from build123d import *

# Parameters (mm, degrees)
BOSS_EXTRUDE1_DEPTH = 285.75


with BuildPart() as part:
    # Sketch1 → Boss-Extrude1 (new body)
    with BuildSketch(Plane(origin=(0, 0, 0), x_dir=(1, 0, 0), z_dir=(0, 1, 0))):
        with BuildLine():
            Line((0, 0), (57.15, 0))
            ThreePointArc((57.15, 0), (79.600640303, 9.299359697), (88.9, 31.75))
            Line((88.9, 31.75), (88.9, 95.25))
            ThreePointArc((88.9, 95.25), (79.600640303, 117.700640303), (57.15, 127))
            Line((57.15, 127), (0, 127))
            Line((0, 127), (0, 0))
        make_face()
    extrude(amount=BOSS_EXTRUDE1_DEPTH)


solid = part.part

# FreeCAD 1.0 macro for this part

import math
import FreeCAD as App
import Part
import Sketcher

V = App.Vector
Q = App.Units.Quantity

doc = App.newDocument("Part")
body = doc.addObject("PartDesign::Body", "Body")

# Sketch on XZ plane
sketch1 = doc.addObject("Sketcher::SketchObject", "Sketch")
body.addObject(sketch1)
sketch1.AttachmentSupport = (doc.XZ_Plane, [""])
sketch1.MapMode = "FlatFace"
sketch1.addGeometry([
    Part.LineSegment(V(0, 0, 0), V(57.15, 0, 0)),  # 0
    Part.ArcOfCircle(Part.Circle(V(57.15, -31.75, 0), V(0, 0, 1), 31.75), math.radians(0), math.radians(90)),  # 1
    Part.LineSegment(V(88.9, -31.75, 0), V(88.9, -95.25, 0)),  # 2
    Part.ArcOfCircle(Part.Circle(V(57.15, -95.25, 0), V(0, 0, 1), 31.75), math.radians(-90), math.radians(0)),  # 3
    Part.LineSegment(V(57.15, -127, 0), V(0, -127, 0)),  # 4
    Part.LineSegment(V(0, -127, 0), V(0, 0, 0)),  # 5
], False)
sketch1.addConstraint([
    Sketcher.Constraint("Tangent", 0, 2, 1, 2),
    Sketcher.Constraint("Tangent", 1, 1, 2, 1),
    Sketcher.Constraint("Tangent", 2, 2, 3, 2),
    Sketcher.Constraint("Tangent", 3, 1, 4, 1),
    Sketcher.Constraint("Coincident", 4, 2, 5, 1),
    Sketcher.Constraint("Coincident", 5, 2, 0, 1),
    Sketcher.Constraint("Horizontal", 0),
    Sketcher.Constraint("Vertical", 2),
    Sketcher.Constraint("Horizontal", 4),
    Sketcher.Constraint("Vertical", 5),
    Sketcher.Constraint("Coincident", 5, 2, -1, 1),
    Sketcher.Constraint("Equal", 1, 3),
    Sketcher.Constraint("DistanceY", 5, 1, 5, 2, Q("5 in")),
    Sketcher.Constraint("Radius", 1, Q("1.25 in")),
    Sketcher.Constraint("DistanceX", 0, 1, 0, 2, Q("2.25 in")),
])
pad1 = doc.addObject("PartDesign::Pad", "Pad")
body.addObject(pad1)
pad1.Profile = sketch1
pad1.Length = Q("11.25 in")
pad1.Reversed = True

doc.recompute()
